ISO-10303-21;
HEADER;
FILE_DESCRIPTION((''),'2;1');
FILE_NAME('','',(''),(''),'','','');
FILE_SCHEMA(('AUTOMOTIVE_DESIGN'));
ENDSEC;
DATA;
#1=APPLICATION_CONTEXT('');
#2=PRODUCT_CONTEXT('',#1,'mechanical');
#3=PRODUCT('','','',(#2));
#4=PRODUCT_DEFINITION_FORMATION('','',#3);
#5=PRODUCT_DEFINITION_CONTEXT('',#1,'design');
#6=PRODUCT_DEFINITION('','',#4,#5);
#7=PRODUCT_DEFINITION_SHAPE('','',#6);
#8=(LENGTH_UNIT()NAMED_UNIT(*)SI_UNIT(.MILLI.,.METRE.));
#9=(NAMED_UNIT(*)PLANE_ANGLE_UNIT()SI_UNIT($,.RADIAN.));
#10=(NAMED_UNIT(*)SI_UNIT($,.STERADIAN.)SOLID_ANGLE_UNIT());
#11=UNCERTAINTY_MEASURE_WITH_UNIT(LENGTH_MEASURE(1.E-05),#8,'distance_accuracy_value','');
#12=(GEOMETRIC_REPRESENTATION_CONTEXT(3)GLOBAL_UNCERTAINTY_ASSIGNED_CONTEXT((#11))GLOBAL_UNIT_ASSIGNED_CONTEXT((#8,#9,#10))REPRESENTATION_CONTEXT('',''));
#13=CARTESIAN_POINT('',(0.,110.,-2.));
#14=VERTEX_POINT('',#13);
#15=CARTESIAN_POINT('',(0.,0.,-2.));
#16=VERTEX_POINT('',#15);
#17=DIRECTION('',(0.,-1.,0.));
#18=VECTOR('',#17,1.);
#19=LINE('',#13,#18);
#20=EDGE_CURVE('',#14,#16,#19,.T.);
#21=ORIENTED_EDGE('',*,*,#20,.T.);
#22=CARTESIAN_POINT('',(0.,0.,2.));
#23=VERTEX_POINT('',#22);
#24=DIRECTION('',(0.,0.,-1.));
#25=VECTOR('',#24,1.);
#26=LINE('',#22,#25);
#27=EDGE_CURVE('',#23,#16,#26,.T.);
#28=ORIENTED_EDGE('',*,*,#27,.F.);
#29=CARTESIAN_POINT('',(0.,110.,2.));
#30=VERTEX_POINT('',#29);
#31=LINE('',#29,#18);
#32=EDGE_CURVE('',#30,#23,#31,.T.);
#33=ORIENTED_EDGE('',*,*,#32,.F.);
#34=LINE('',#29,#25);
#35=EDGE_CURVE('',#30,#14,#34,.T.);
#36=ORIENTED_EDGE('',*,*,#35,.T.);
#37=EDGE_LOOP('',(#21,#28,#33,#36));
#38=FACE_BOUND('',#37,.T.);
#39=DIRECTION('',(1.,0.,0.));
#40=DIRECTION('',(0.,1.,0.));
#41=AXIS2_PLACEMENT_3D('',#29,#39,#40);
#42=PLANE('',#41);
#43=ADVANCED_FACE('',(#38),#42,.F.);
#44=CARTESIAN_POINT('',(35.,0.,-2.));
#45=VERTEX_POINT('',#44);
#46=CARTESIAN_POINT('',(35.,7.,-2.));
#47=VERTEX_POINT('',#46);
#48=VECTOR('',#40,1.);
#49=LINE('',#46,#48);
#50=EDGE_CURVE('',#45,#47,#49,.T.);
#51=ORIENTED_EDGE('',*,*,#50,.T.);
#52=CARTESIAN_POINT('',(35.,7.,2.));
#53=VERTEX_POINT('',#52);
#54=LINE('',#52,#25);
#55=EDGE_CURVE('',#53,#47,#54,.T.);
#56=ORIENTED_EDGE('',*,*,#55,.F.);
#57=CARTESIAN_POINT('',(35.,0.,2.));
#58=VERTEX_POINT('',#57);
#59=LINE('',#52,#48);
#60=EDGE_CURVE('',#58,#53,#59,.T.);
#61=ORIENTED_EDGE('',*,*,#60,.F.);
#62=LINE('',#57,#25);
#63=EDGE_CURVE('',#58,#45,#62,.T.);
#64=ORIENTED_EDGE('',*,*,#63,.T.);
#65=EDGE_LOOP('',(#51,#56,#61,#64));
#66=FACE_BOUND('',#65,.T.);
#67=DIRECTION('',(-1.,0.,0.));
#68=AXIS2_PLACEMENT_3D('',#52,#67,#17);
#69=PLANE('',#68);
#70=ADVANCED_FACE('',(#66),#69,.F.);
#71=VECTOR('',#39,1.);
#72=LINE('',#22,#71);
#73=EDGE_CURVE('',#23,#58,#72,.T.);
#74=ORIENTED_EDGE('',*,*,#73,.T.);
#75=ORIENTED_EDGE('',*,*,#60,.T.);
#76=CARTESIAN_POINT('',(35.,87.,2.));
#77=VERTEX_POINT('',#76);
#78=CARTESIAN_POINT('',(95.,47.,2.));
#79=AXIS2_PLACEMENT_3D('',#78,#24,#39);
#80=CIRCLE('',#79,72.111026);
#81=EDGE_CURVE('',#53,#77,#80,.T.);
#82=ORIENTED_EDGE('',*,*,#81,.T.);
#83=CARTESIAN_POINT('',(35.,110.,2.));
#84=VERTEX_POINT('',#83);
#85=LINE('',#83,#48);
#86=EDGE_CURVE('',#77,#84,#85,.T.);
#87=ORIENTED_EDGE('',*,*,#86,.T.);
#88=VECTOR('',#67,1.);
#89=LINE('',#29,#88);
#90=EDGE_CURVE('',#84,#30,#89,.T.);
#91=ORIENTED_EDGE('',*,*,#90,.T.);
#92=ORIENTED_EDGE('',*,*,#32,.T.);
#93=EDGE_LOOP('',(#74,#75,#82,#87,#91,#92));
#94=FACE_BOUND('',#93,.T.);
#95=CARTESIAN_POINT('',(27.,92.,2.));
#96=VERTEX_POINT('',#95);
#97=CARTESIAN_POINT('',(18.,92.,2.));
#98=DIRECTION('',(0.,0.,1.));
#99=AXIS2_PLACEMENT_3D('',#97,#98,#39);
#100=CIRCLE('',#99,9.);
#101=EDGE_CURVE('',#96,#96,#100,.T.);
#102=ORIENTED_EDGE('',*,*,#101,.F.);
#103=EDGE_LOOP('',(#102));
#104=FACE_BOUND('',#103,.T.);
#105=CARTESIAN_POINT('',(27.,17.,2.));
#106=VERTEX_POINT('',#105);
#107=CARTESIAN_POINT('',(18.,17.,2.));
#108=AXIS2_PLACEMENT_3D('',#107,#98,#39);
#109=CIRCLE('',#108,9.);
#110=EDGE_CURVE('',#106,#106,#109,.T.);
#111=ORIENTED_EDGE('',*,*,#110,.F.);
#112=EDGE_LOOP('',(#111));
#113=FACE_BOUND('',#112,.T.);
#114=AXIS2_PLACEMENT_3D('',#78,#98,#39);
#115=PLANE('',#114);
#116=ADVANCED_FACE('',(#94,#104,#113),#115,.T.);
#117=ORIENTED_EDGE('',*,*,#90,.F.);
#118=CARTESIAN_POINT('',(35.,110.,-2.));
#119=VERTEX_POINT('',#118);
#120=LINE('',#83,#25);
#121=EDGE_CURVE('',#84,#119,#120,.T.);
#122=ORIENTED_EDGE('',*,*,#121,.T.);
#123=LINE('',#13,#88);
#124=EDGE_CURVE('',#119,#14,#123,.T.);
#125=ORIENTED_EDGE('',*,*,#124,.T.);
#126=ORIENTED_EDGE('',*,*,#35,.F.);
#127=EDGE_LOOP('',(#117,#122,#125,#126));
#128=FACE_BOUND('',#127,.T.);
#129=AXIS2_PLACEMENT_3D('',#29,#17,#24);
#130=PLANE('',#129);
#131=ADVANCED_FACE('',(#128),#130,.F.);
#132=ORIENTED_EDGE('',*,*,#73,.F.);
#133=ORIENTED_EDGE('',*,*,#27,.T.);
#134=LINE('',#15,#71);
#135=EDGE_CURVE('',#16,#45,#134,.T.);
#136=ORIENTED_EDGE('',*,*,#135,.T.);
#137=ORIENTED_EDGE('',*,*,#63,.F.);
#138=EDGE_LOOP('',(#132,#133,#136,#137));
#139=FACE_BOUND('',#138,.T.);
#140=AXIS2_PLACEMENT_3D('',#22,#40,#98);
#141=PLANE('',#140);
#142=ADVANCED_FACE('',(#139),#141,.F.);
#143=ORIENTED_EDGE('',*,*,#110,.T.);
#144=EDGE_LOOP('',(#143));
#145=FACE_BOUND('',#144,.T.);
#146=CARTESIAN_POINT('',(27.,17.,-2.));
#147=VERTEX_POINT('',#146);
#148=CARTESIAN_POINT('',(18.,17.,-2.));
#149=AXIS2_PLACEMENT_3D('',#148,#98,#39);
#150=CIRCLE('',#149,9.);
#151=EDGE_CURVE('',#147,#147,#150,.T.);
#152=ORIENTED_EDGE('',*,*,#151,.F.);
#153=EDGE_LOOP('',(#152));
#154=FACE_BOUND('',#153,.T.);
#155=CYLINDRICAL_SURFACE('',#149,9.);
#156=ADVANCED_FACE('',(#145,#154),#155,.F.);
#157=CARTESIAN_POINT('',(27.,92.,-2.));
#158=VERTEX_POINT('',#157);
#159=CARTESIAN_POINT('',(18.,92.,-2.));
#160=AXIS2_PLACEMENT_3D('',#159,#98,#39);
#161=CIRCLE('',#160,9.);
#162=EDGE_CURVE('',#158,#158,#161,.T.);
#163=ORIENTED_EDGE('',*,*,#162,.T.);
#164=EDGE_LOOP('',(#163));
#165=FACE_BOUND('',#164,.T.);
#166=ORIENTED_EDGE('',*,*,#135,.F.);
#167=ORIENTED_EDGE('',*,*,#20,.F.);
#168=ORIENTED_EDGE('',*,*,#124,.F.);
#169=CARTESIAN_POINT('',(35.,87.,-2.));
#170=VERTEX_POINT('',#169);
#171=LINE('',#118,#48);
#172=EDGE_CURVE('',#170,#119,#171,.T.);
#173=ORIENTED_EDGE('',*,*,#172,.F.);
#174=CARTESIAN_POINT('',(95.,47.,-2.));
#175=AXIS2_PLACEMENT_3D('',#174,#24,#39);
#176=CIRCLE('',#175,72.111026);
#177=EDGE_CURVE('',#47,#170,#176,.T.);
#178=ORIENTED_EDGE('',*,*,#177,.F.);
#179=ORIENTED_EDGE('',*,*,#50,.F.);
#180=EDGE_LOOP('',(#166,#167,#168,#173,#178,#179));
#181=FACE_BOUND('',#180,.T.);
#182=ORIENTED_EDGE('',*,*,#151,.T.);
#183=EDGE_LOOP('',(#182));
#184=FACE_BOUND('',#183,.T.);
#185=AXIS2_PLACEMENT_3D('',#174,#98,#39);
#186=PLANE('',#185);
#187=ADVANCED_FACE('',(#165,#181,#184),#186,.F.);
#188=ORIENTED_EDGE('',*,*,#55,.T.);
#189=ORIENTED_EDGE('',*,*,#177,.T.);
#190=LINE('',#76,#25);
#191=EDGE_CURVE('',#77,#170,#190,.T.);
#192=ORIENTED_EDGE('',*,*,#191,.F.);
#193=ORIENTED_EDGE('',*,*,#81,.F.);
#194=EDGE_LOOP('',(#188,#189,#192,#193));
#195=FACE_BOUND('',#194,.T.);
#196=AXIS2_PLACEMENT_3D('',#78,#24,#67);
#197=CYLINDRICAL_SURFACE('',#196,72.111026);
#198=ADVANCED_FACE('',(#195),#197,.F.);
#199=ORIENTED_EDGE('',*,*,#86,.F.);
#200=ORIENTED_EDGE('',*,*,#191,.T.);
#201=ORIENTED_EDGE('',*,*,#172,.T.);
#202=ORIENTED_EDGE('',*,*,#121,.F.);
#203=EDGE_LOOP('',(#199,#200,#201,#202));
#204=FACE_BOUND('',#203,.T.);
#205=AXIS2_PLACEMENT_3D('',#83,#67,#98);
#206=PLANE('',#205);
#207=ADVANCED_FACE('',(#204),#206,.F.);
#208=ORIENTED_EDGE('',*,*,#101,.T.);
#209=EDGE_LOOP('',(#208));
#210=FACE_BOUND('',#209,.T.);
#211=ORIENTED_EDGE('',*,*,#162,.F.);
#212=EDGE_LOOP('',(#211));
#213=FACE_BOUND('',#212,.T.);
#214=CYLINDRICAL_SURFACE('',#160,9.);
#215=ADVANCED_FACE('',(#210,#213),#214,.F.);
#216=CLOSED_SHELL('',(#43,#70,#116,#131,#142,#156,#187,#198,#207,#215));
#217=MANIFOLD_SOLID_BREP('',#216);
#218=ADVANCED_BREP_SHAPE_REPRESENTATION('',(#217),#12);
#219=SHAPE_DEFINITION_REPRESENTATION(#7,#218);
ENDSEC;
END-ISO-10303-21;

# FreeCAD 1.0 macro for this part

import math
import FreeCAD as App
import Part
import Sketcher
Q = App.Units.Quantity

doc = App.newDocument("Part")
body = doc.addObject("PartDesign::Body", "Body")

# Sketch on XY plane
sketch1 = body.newObject("Sketcher::SketchObject", "Sketch")
sketch1.AttachmentSupport = (doc.getObject("XY_Plane"), [""])
sketch1.MapMode = "FlatFace"
sketch1.addGeometry(Part.LineSegment(App.Vector(35, 110, 0), App.Vector(0, 110, 0)), False)
sketch1.addGeometry(Part.LineSegment(App.Vector(0, 110, 0), App.Vector(0, 0, 0)), False)
sketch1.addGeometry(Part.LineSegment(App.Vector(0, 0, 0), App.Vector(35, 0, 0)), False)
sketch1.addGeometry(Part.LineSegment(App.Vector(35, 0, 0), App.Vector(35, 7, 0)), False)
sketch1.addGeometry(Part.ArcOfCircle(Part.Circle(App.Vector(95, 47, 0), App.Vector(0, 0, 1), 72), math.radians(146), math.radians(214)), False)
sketch1.addGeometry(Part.LineSegment(App.Vector(35, 87, 0), App.Vector(35, 110, 0)), False)
sketch1.addConstraint(Sketcher.Constraint("Coincident", 0, 2, 1, 1))
sketch1.addConstraint(Sketcher.Constraint("Coincident", 1, 2, 2, 1))
sketch1.addConstraint(Sketcher.Constraint("Coincident", 2, 2, 3, 1))
sketch1.addConstraint(Sketcher.Constraint("Coincident", 3, 2, 4, 2))
sketch1.addConstraint(Sketcher.Constraint("Coincident", 4, 1, 5, 1))
sketch1.addConstraint(Sketcher.Constraint("Coincident", 5, 2, 0, 1))
sketch1.addConstraint(Sketcher.Constraint("Horizontal", 0))
sketch1.addConstraint(Sketcher.Constraint("Vertical", 1))
sketch1.addConstraint(Sketcher.Constraint("Horizontal", 2))
sketch1.addConstraint(Sketcher.Constraint("Vertical", 3))
sketch1.addConstraint(Sketcher.Constraint("Vertical", 5))
sketch1.addConstraint(Sketcher.Constraint("Coincident", 1, 2, -1, 1))
sketch1.addConstraint(Sketcher.Constraint("Vertical", 3, 2, 4, 1))
sketch1.addConstraint(Sketcher.Constraint("DistanceX", 0, 2, 0, 1, Q("35 mm")))
sketch1.addConstraint(Sketcher.Constraint("DistanceY", 1, 2, 1, 1, Q("110 mm")))
sketch1.addConstraint(Sketcher.Constraint("DistanceY", 3, 1, 3, 2, Q("7 mm")))
sketch1.addConstraint(Sketcher.Constraint("DistanceY", 5, 1, 5, 2, Q("23 mm")))
sketch1.addConstraint(Sketcher.Constraint("DistanceX", -1, 1, 4, 3, Q("95 mm")))
pad1 = body.newObject("PartDesign::Pad", "Pad")
pad1.Profile = sketch1
pad1.Length = 4
pad1.Midplane = True

# Sketch on XY plane
sketch2 = body.newObject("Sketcher::SketchObject", "Sketch001")
sketch2.AttachmentSupport = (doc.getObject("XY_Plane"), [""])
sketch2.MapMode = "FlatFace"
sketch2.AttachmentOffset = App.Placement(App.Vector(0, 0, 2), App.Rotation())
sketch2.addGeometry(Part.Circle(App.Vector(18, 92, 0), App.Vector(0, 0, 1), 9), False)
sketch2.addGeometry(Part.Circle(App.Vector(18, 17, 0), App.Vector(0, 0, 1), 9), False)
sketch2.addConstraint(Sketcher.Constraint("Equal", 0, 1))
sketch2.addConstraint(Sketcher.Constraint("Vertical", 0, 3, 1, 3))
sketch2.addConstraint(Sketcher.Constraint("Diameter", 0, Q("18 mm")))
sketch2.addConstraint(Sketcher.Constraint("DistanceX", -1, 1, 0, 3, Q("18 mm")))
sketch2.addConstraint(Sketcher.Constraint("DistanceY", -1, 1, 0, 3, Q("92 mm")))
sketch2.addConstraint(Sketcher.Constraint("DistanceY", -1, 1, 1, 3, Q("17 mm")))
pocket1 = body.newObject("PartDesign::Pocket", "Pocket")
pocket1.Profile = sketch2
pocket1.Type = "ThroughAll"

doc.recompute()
